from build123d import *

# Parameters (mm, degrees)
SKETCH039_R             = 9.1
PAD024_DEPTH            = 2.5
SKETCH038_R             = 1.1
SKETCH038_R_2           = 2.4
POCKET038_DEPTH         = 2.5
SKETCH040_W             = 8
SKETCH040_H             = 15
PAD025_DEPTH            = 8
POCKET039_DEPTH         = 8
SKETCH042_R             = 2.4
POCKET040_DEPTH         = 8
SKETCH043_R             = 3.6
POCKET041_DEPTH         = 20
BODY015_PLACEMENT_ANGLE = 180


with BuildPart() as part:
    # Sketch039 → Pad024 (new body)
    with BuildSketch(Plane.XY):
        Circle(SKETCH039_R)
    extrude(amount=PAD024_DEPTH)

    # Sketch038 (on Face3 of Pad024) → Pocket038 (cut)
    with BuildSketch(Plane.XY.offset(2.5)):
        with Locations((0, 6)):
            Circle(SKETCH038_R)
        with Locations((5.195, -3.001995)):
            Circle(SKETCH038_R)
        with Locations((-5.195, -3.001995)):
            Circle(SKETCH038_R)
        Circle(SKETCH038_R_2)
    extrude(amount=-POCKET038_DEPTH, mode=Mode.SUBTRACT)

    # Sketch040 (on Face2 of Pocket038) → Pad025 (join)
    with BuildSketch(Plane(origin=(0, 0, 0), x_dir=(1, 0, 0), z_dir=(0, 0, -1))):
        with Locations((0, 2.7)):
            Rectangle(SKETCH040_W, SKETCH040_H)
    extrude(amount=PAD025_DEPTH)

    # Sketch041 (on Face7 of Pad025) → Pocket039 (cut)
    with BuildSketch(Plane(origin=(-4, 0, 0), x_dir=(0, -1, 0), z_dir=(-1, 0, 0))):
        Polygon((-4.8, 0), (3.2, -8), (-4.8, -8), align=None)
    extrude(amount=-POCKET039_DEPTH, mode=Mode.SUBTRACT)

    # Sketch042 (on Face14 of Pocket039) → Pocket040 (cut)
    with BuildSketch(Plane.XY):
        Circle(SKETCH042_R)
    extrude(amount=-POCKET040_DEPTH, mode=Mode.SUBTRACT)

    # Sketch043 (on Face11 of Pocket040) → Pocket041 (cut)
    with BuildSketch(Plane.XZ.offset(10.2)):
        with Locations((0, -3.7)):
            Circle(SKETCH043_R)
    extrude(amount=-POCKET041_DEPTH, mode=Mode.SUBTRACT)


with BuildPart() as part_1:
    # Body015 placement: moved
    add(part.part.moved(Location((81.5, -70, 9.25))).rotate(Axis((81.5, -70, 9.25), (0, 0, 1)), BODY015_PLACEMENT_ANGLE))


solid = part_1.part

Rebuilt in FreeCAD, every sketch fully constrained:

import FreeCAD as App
import Part
import Sketcher

V = App.Vector


def add_polygon(sketch, points):
    """Adds a closed chain of lines whose ends are joined by coincident constraints."""
    first, n = sketch.GeometryCount, len(points)
    for a, b in zip(points, points[1:] + points[:1]):
        sketch.addGeometry(Part.LineSegment(App.Vector(*a, 0), App.Vector(*b, 0)), False)
    for i in range(n):
        sketch.addConstraint(Sketcher.Constraint("Coincident", first + i, 2, first + (i + 1) % n, 1))

doc = App.newDocument("Part")
body = doc.addObject("PartDesign::Body", "Body")

# Sketch on XY plane
sketch1 = body.newObject("Sketcher::SketchObject", "Sketch")
sketch1.AttachmentSupport = (doc.getObject("XY_Plane"), [""])
sketch1.MapMode = "FlatFace"
sketch1.addGeometry(Part.Circle(V(0, 0, 0), V(0, 0, 1), 9), False)
sketch1.addConstraint(Sketcher.Constraint("Coincident", 0, 3, -1, 1))
sketch1.addConstraint(Sketcher.Constraint("Diameter", 0, 18.2))
pad1 = body.newObject("PartDesign::Pad", "Pad")
pad1.Profile = sketch1
pad1.Length = 2.5

# Sketch on XY plane
sketch2 = body.newObject("Sketcher::SketchObject", "Sketch001")
sketch2.AttachmentSupport = (doc.getObject("XY_Plane"), [""])
sketch2.MapMode = "FlatFace"
sketch2.AttachmentOffset = App.Placement(V(0, 0, 2.5), App.Rotation())
sketch2.addGeometry(Part.Circle(V(0, 6, 0), V(0, 0, 1), 1.1), False)
sketch2.addGeometry(Part.Circle(V(5.2, -3, 0), V(0, 0, 1), 1.1), False)
sketch2.addGeometry(Part.Circle(V(-5.2, -3, 0), V(0, 0, 1), 1.1), False)
sketch2.addGeometry(Part.Circle(V(0, 0, 0), V(0, 0, 1), 2.4), False)
sketch2.addConstraint(Sketcher.Constraint("Coincident", 3, 3, -1, 1))
sketch2.addConstraint(Sketcher.Constraint("Equal", 0, 1))
sketch2.addConstraint(Sketcher.Constraint("Equal", 1, 2))
sketch2.addConstraint(Sketcher.Constraint("Symmetric", 1, 3, 2, 3, -2))
sketch2.addConstraint(Sketcher.Constraint("PointOnObject", 0, 3, -2))
sketch2.addConstraint(Sketcher.Constraint("Diameter", 0, 2.2))
sketch2.addConstraint(Sketcher.Constraint("Diameter", 3, 4.8))
sketch2.addConstraint(Sketcher.Constraint("DistanceY", -1, 1, 0, 3, 6.0))
sketch2.addConstraint(Sketcher.Constraint("DistanceX", 2, 3, 1, 3, 10.39))
sketch2.addConstraint(Sketcher.Constraint("DistanceY", 1, 3, -1, 1, 3.001995))
pocket1 = body.newObject("PartDesign::Pocket", "Pocket")
pocket1.Profile = sketch2
pocket1.Length = 2.5

# Sketch on XY plane
sketch3 = body.newObject("Sketcher::SketchObject", "Sketch002")
sketch3.AttachmentSupport = (doc.getObject("XY_Plane"), [""])
sketch3.MapMode = "FlatFace"
add_polygon(sketch3, [(-4, -10), (-4, 5), (4, 5), (4, -10)])  # lines 0-3
sketch3.addConstraint(Sketcher.Constraint("Vertical", 0))
sketch3.addConstraint(Sketcher.Constraint("Horizontal", 1))
sketch3.addConstraint(Sketcher.Constraint("Vertical", 2))
sketch3.addConstraint(Sketcher.Constraint("Horizontal", 3))
sketch3.addConstraint(Sketcher.Constraint("DistanceX", 1, 1, 1, 2, 8.0))
sketch3.addConstraint(Sketcher.Constraint("DistanceY", 0, 1, 0, 2, 15.0))
sketch3.addConstraint(Sketcher.Constraint("DistanceX", 0, 2, -1, 1, 4.0))
sketch3.addConstraint(Sketcher.Constraint("DistanceY", -1, 1, 0, 2, 4.8))
pad2 = body.newObject("PartDesign::Pad", "Pad001")
pad2.Profile = sketch3
pad2.Length = 8
pad2.Reversed = True

# Sketch on YZ plane
sketch4 = body.newObject("Sketcher::SketchObject", "Sketch003")
sketch4.AttachmentSupport = (doc.getObject("YZ_Plane"), [""])
sketch4.MapMode = "FlatFace"
sketch4.AttachmentOffset = App.Placement(V(0, 0, -4), App.Rotation())
add_polygon(sketch4, [(-3, -8), (5, 0), (5, -8)])  # lines 0-2
sketch4.addConstraint(Sketcher.Constraint("Vertical", 1))
sketch4.addConstraint(Sketcher.Constraint("Horizontal", 2))
sketch4.addConstraint(Sketcher.Constraint("PointOnObject", 0, 2, -1))
sketch4.addConstraint(Sketcher.Constraint("Equal", 2, 1))
sketch4.addConstraint(Sketcher.Constraint("DistanceX", 2, 2, 2, 1, 8.0))
sketch4.addConstraint(Sketcher.Constraint("DistanceX", -1, 1, 0, 2, 4.8))
pocket2 = body.newObject("PartDesign::Pocket", "Pocket001")
pocket2.Profile = sketch4
pocket2.Length = 8
pocket2.Reversed = True

# Sketch on XY plane
sketch5 = body.newObject("Sketcher::SketchObject", "Sketch004")
sketch5.AttachmentSupport = (doc.getObject("XY_Plane"), [""])
sketch5.MapMode = "FlatFace"
sketch5.addGeometry(Part.Circle(V(0, 0, 0), V(0, 0, 1), 2.4), False)
sketch5.addConstraint(Sketcher.Constraint("Coincident", 0, 3, -1, 1))
sketch5.addConstraint(Sketcher.Constraint("Diameter", 0, 4.8))
pocket3 = body.newObject("PartDesign::Pocket", "Pocket002")
pocket3.Profile = sketch5
pocket3.Length = 8

# Sketch on XZ plane
sketch6 = body.newObject("Sketcher::SketchObject", "Sketch005")
sketch6.AttachmentSupport = (doc.getObject("XZ_Plane"), [""])
sketch6.MapMode = "FlatFace"
sketch6.AttachmentOffset = App.Placement(V(0, 0, 10.2), App.Rotation())
sketch6.addGeometry(Part.Circle(V(0, -3.7, 0), V(0, 0, 1), 3.6), False)
sketch6.addConstraint(Sketcher.Constraint("PointOnObject", 0, 3, -2))
sketch6.addConstraint(Sketcher.Constraint("Diameter", 0, 7.2))
sketch6.addConstraint(Sketcher.Constraint("DistanceY", 0, 3, -1, 1, 3.7))
pocket4 = body.newObject("PartDesign::Pocket", "Pocket003")
pocket4.Profile = sketch6
pocket4.Length = 20
body2 = doc.addObject("PartDesign::Body", "Body001")
doc.recompute()

body.Placement = App.Placement(V(81.5, -70, 9.25), App.Rotation(V(0, 0, 1), 180))
boolean = body2.newObject("PartDesign::Boolean", "Boolean")
boolean.Type = "Fuse"
boolean.addObjects([body])

doc.recompute()
